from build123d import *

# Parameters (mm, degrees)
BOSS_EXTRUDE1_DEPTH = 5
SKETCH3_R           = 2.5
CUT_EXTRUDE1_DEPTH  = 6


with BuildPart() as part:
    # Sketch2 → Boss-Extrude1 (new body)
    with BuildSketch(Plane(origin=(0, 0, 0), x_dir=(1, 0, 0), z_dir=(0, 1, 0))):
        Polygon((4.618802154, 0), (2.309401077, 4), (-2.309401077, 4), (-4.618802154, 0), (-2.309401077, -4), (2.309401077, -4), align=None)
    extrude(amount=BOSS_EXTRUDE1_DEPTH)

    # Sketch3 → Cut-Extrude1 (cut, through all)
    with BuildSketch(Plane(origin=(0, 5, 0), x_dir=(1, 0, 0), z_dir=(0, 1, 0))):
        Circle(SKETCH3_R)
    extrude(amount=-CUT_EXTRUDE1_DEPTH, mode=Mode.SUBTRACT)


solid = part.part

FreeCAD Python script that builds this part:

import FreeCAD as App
import Part
import Sketcher
from FreeCAD import Vector
Q = App.Units.Quantity


def add_polygon(sketch, points):
    """Adds a closed chain of lines whose ends are joined by coincident constraints."""
    first, n = sketch.GeometryCount, len(points)
    for a, b in zip(points, points[1:] + points[:1]):
        sketch.addGeometry(Part.LineSegment(App.Vector(*a, 0), App.Vector(*b, 0)), False)
    for i in range(n):
        sketch.addConstraint(Sketcher.Constraint("Coincident", first + i, 2, first + (i + 1) % n, 1))

doc = App.newDocument("Part")
body = doc.addObject("PartDesign::Body", "Body")

# Sketch on XZ plane
sketch1 = body.newObject("Sketcher::SketchObject", "Sketch")
sketch1.AttachmentSupport = (doc.getObject("XZ_Plane"), [""])
sketch1.MapMode = "FlatFace"
add_polygon(sketch1, [(4.6, 0), (2.3, -4), (-2.3, -4), (-4.6, 0), (-2.3, 4), (2.3, 4)])  # lines 0-5
sketch1.addConstraint([
    Sketcher.Constraint("Horizontal", 1),
    Sketcher.Constraint("Horizontal", 4),
    Sketcher.Constraint("Symmetric", 0, 2, 3, 2, -1, 1),
    Sketcher.Constraint("Symmetric", 2, 2, 5, 2, -1, 1),
    Sketcher.Constraint("PointOnObject", 2, 2, -1),
    Sketcher.Constraint("Parallel", 2, 5),
    Sketcher.Constraint("Vertical", 1, 2, 3, 2),
    Sketcher.Constraint("Angle", 0, Q("-120 deg")),
    Sketcher.Constraint("DistanceY", 0, 2, -1, 1, Q("4 mm")),
    Sketcher.Constraint("DistanceX", -1, 1, 0, 2, Q("2.309401 mm")),
])
pad1 = body.newObject("PartDesign::Pad", "Pad")
pad1.Profile = sketch1
pad1.Length = 5
pad1.Reversed = True

# Sketch on XZ plane
sketch2 = body.newObject("Sketcher::SketchObject", "Sketch001")
sketch2.AttachmentSupport = (doc.getObject("XZ_Plane"), [""])
sketch2.MapMode = "FlatFace"
sketch2.AttachmentOffset = App.Placement(Vector(0, 0, -5), App.Rotation())
sketch2.addGeometry(Part.Circle(Vector(0, 0, 0), Vector(0, 0, 1), 2.5), False)
sketch2.addConstraint([
    Sketcher.Constraint("Coincident", 0, 3, -1, 1),
    Sketcher.Constraint("Diameter", 0, Q("5 mm")),
])
pocket1 = body.newObject("PartDesign::Pocket", "Pocket")
pocket1.Profile = sketch2
pocket1.Type = "ThroughAll"
pocket1.Reversed = True

doc.recompute()
